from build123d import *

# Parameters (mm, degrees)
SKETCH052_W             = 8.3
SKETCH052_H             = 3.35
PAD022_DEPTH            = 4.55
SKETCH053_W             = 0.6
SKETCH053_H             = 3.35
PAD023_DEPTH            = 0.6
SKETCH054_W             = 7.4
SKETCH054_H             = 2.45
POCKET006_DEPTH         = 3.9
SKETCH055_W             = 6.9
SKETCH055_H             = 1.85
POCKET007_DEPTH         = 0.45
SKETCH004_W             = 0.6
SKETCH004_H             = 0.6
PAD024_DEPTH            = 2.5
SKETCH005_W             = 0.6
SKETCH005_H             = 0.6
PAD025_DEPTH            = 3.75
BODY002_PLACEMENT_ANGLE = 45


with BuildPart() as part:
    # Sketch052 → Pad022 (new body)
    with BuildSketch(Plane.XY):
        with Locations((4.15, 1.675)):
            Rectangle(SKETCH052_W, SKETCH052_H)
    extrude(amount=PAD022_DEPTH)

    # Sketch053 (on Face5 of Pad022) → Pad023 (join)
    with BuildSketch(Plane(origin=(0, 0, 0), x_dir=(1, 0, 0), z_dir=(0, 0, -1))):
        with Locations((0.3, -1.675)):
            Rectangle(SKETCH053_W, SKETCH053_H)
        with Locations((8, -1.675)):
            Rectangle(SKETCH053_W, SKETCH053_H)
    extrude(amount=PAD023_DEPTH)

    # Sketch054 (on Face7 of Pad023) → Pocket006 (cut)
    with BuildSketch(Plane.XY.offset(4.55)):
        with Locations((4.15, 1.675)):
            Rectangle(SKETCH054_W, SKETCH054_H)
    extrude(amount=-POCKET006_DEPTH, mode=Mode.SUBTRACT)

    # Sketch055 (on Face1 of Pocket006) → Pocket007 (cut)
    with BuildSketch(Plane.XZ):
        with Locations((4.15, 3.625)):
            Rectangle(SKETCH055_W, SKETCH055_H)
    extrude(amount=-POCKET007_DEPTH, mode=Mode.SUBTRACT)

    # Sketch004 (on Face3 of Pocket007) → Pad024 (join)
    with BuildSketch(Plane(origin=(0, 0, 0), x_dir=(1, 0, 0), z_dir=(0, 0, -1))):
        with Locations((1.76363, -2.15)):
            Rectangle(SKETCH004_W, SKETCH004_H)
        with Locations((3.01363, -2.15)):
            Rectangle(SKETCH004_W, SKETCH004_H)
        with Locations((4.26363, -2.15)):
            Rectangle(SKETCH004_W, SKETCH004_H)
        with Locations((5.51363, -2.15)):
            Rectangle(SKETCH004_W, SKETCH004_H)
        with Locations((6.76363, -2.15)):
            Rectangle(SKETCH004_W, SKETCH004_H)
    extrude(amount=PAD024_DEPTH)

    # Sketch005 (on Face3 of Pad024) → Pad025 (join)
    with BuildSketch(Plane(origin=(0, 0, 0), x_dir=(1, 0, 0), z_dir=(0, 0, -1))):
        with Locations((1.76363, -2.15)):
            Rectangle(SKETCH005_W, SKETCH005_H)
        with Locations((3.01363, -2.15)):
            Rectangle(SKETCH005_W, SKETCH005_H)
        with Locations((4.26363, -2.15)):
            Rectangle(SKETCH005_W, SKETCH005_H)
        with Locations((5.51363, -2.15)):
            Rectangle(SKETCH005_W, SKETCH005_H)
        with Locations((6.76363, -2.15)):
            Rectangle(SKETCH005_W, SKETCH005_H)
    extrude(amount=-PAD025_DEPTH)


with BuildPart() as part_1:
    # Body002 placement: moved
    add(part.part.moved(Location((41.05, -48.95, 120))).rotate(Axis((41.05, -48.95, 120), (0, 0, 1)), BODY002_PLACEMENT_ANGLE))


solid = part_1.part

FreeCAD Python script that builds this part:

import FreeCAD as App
import Part
import Sketcher
from FreeCAD import Vector
Q = App.Units.Quantity


def add_polygon(sketch, points):
    """Adds a closed chain of lines whose ends are joined by coincident constraints."""
    first, n = sketch.GeometryCount, len(points)
    for a, b in zip(points, points[1:] + points[:1]):
        sketch.addGeometry(Part.LineSegment(App.Vector(*a, 0), App.Vector(*b, 0)), False)
    for i in range(n):
        sketch.addConstraint(Sketcher.Constraint("Coincident", first + i, 2, first + (i + 1) % n, 1))

doc = App.newDocument("Part")
body = doc.addObject("PartDesign::Body", "Body")

# Sketch on XY plane
sketch1 = body.newObject("Sketcher::SketchObject", "Sketch")
sketch1.AttachmentSupport = (doc.getObject("XY_Plane"), [""])
sketch1.MapMode = "FlatFace"
add_polygon(sketch1, [(0, 3.4), (0, 0), (8.3, 0), (8.3, 3.4)])  # lines 0-3
sketch1.addConstraint([
    Sketcher.Constraint("Vertical", 0),
    Sketcher.Constraint("Horizontal", 1),
    Sketcher.Constraint("Vertical", 2),
    Sketcher.Constraint("Horizontal", 3),
    Sketcher.Constraint("Coincident", 0, 2, -1, 1),
    Sketcher.Constraint("DistanceX", 1, 1, 1, 2, Q("8.3 mm")),
    Sketcher.Constraint("DistanceY", 0, 2, 0, 1, Q("3.35 mm")),
])
pad1 = body.newObject("PartDesign::Pad", "Pad")
pad1.Profile = sketch1
pad1.Length = 4.55

# Sketch on XY plane
sketch2 = body.newObject("Sketcher::SketchObject", "Sketch001")
sketch2.AttachmentSupport = (doc.getObject("XY_Plane"), [""])
sketch2.MapMode = "FlatFace"
add_polygon(sketch2, [(0, 0), (0, 3.4), (0.6, 3.4), (0.6, 0)])  # lines 0-3
add_polygon(sketch2, [(7.7, 0), (7.7, 3.4), (8.3, 3.4), (8.3, 0)])  # lines 4-7
sketch2.addConstraint([
    Sketcher.Constraint("Vertical", 0),
    Sketcher.Constraint("Horizontal", 1),
    Sketcher.Constraint("Vertical", 2),
    Sketcher.Constraint("Horizontal", 3),
    Sketcher.Constraint("Vertical", 4),
    Sketcher.Constraint("Horizontal", 5),
    Sketcher.Constraint("Vertical", 6),
    Sketcher.Constraint("Horizontal", 7),
    Sketcher.Constraint("Coincident", 3, 2, -1, 1),
    Sketcher.Constraint("PointOnObject", 6, 2, -1),
    Sketcher.Constraint("Horizontal", 1, 2, 4, 2),
    Sketcher.Constraint("Equal", 3, 5),
    Sketcher.Constraint("DistanceX", 1, 1, 1, 2, Q("0.6 mm")),
    Sketcher.Constraint("DistanceY", 0, 1, 0, 2, Q("3.35 mm")),
    Sketcher.Constraint("DistanceX", -1, 1, 4, 2, Q("7.7 mm")),
])
pad2 = body.newObject("PartDesign::Pad", "Pad001")
pad2.Profile = sketch2
pad2.Length = 0.6
pad2.Reversed = True

# Sketch on XY plane
sketch3 = body.newObject("Sketcher::SketchObject", "Sketch002")
sketch3.AttachmentSupport = (doc.getObject("XY_Plane"), [""])
sketch3.MapMode = "FlatFace"
sketch3.AttachmentOffset = App.Placement(Vector(0, 0, 4.55), App.Rotation())
add_polygon(sketch3, [(0.5, 2.9), (0.5, 0.5), (7.8, 0.5), (7.8, 2.9)])  # lines 0-3
sketch3.addConstraint([
    Sketcher.Constraint("Vertical", 0),
    Sketcher.Constraint("Horizontal", 1),
    Sketcher.Constraint("Vertical", 2),
    Sketcher.Constraint("Horizontal", 3),
    Sketcher.Constraint("DistanceX", 1, 1, 1, 2, Q("7.4 mm")),
    Sketcher.Constraint("DistanceY", 0, 2, 0, 1, Q("2.45 mm")),
    Sketcher.Constraint("DistanceY", -1, 1, 2, 2, Q("2.9 mm")),
    Sketcher.Constraint("DistanceX", -1, 1, 0, 2, Q("0.45 mm")),
])
pocket1 = body.newObject("PartDesign::Pocket", "Pocket")
pocket1.Profile = sketch3
pocket1.Length = 3.9

# Sketch on XZ plane
sketch4 = body.newObject("Sketcher::SketchObject", "Sketch003")
sketch4.AttachmentSupport = (doc.getObject("XZ_Plane"), [""])
sketch4.MapMode = "FlatFace"
add_polygon(sketch4, [(0.7, 4.5), (0.7, 2.7), (7.6, 2.7), (7.6, 4.5)])  # lines 0-3
sketch4.addConstraint([
    Sketcher.Constraint("Vertical", 0),
    Sketcher.Constraint("Horizontal", 1),
    Sketcher.Constraint("Vertical", 2),
    Sketcher.Constraint("Horizontal", 3),
    Sketcher.Constraint("DistanceX", 1, 1, 1, 2, Q("6.9 mm")),
    Sketcher.Constraint("DistanceY", 0, 2, 0, 1, Q("1.85 mm")),
    Sketcher.Constraint("DistanceX", -1, 1, 0, 2, Q("0.7 mm")),
    Sketcher.Constraint("DistanceY", -1, 1, 0, 2, Q("2.7 mm")),
])
pocket2 = body.newObject("PartDesign::Pocket", "Pocket001")
pocket2.Profile = sketch4
pocket2.Length = 0.45

# Sketch on XY plane
sketch5 = body.newObject("Sketcher::SketchObject", "Sketch004")
sketch5.AttachmentSupport = (doc.getObject("XY_Plane"), [""])
sketch5.MapMode = "FlatFace"
add_polygon(sketch5, [(1.5, 1.9), (1.5, 2.5), (2.1, 2.5), (2.1, 1.9)])  # lines 0-3
add_polygon(sketch5, [(2.7, 1.9), (2.7, 2.5), (3.3, 2.5), (3.3, 1.9)])  # lines 4-7
add_polygon(sketch5, [(4, 1.9), (4, 2.5), (4.6, 2.5), (4.6, 1.9)])  # lines 8-11
add_polygon(sketch5, [(5.2, 1.9), (5.2, 2.5), (5.8, 2.5), (5.8, 1.9)])  # lines 12-15
add_polygon(sketch5, [(6.5, 1.9), (6.5, 2.5), (7.1, 2.5), (7.1, 1.9)])  # lines 16-19
sketch5.addConstraint([
    Sketcher.Constraint("Vertical", 0),
    Sketcher.Constraint("Horizontal", 1),
    Sketcher.Constraint("Vertical", 2),
    Sketcher.Constraint("Horizontal", 3),
    Sketcher.Constraint("Vertical", 4),
    Sketcher.Constraint("Horizontal", 5),
    Sketcher.Constraint("Vertical", 6),
    Sketcher.Constraint("Horizontal", 7),
    Sketcher.Constraint("Vertical", 8),
    Sketcher.Constraint("Horizontal", 9),
    Sketcher.Constraint("Vertical", 10),
    Sketcher.Constraint("Horizontal", 11),
    Sketcher.Constraint("Vertical", 12),
    Sketcher.Constraint("Horizontal", 13),
    Sketcher.Constraint("Vertical", 14),
    Sketcher.Constraint("Horizontal", 15),
    Sketcher.Constraint("Vertical", 16),
    Sketcher.Constraint("Horizontal", 17),
    Sketcher.Constraint("Vertical", 18),
    Sketcher.Constraint("Horizontal", 19),
    Sketcher.Constraint("Horizontal", 1, 2, 4, 2),
    Sketcher.Constraint("Horizontal", 3, 2, 6, 2),
    Sketcher.Constraint("Horizontal", 5, 2, 8, 2),
    Sketcher.Constraint("Horizontal", 7, 2, 10, 2),
    Sketcher.Constraint("Horizontal", 9, 2, 12, 2),
    Sketcher.Constraint("Horizontal", 11, 2, 14, 2),
    Sketcher.Constraint("Horizontal", 13, 2, 16, 2),
    Sketcher.Constraint("Horizontal", 15, 2, 18, 2),
    Sketcher.Constraint("Equal", 3, 5),
    Sketcher.Constraint("Equal", 7, 9),
    Sketcher.Constraint("Equal", 11, 13),
    Sketcher.Constraint("Equal", 15, 17),
    Sketcher.Constraint("Equal", 19, 0),
    Sketcher.Constraint("DistanceX", 1, 1, 1, 2, Q("0.6 mm")),
    Sketcher.Constraint("DistanceX", 1, 2, 8, 2, Q("1.9 mm")),
    Sketcher.Constraint("DistanceX", 5, 2, 12, 2, Q("1.9 mm")),
    Sketcher.Constraint("DistanceX", 9, 2, 16, 2, Q("1.9 mm")),
    Sketcher.Constraint("DistanceY", -1, 1, 0, 2, Q("2.45 mm")),
    Sketcher.Constraint("DistanceX", 1, 2, 4, 2, Q("0.65 mm")),
    Sketcher.Constraint("DistanceX", -1, 1, 0, 2, Q("1.46363 mm")),
])
pad3 = body.newObject("PartDesign::Pad", "Pad002")
pad3.Profile = sketch5
pad3.Length = 2.5
pad3.Reversed = True

# Sketch on XY plane
sketch6 = body.newObject("Sketcher::SketchObject", "Sketch005")
sketch6.AttachmentSupport = (doc.getObject("XY_Plane"), [""])
sketch6.MapMode = "FlatFace"
add_polygon(sketch6, [(1.5, 1.9), (1.5, 2.5), (2.1, 2.5), (2.1, 1.9)])  # lines 0-3
add_polygon(sketch6, [(2.7, 1.9), (2.7, 2.5), (3.3, 2.5), (3.3, 1.9)])  # lines 4-7
add_polygon(sketch6, [(4, 1.9), (4, 2.5), (4.6, 2.5), (4.6, 1.9)])  # lines 8-11
add_polygon(sketch6, [(5.2, 1.9), (5.2, 2.5), (5.8, 2.5), (5.8, 1.9)])  # lines 12-15
add_polygon(sketch6, [(6.5, 1.9), (6.5, 2.5), (7.1, 2.5), (7.1, 1.9)])  # lines 16-19
sketch6.addConstraint([
    Sketcher.Constraint("Vertical", 0),
    Sketcher.Constraint("Horizontal", 1),
    Sketcher.Constraint("Vertical", 2),
    Sketcher.Constraint("Horizontal", 3),
    Sketcher.Constraint("Vertical", 4),
    Sketcher.Constraint("Horizontal", 5),
    Sketcher.Constraint("Vertical", 6),
    Sketcher.Constraint("Horizontal", 7),
    Sketcher.Constraint("Vertical", 8),
    Sketcher.Constraint("Horizontal", 9),
    Sketcher.Constraint("Vertical", 10),
    Sketcher.Constraint("Horizontal", 11),
    Sketcher.Constraint("Vertical", 12),
    Sketcher.Constraint("Horizontal", 13),
    Sketcher.Constraint("Vertical", 14),
    Sketcher.Constraint("Horizontal", 15),
    Sketcher.Constraint("Vertical", 16),
    Sketcher.Constraint("Horizontal", 17),
    Sketcher.Constraint("Vertical", 18),
    Sketcher.Constraint("Horizontal", 19),
    Sketcher.Constraint("Horizontal", 1, 2, 4, 2),
    Sketcher.Constraint("Horizontal", 3, 2, 6, 2),
    Sketcher.Constraint("Horizontal", 5, 2, 8, 2),
    Sketcher.Constraint("Horizontal", 7, 2, 10, 2),
    Sketcher.Constraint("Horizontal", 9, 2, 12, 2),
    Sketcher.Constraint("Horizontal", 11, 2, 14, 2),
    Sketcher.Constraint("Horizontal", 13, 2, 16, 2),
    Sketcher.Constraint("Horizontal", 15, 2, 18, 2),
    Sketcher.Constraint("Equal", 3, 5),
    Sketcher.Constraint("Equal", 7, 9),
    Sketcher.Constraint("Equal", 11, 13),
    Sketcher.Constraint("Equal", 15, 17),
    Sketcher.Constraint("Equal", 19, 0),
    Sketcher.Constraint("DistanceX", 1, 1, 1, 2, Q("0.6 mm")),
    Sketcher.Constraint("DistanceX", 1, 2, 8, 2, Q("1.9 mm")),
    Sketcher.Constraint("DistanceX", 5, 2, 12, 2, Q("1.9 mm")),
    Sketcher.Constraint("DistanceX", 9, 2, 16, 2, Q("1.9 mm")),
    Sketcher.Constraint("DistanceY", -1, 1, 0, 2, Q("2.45 mm")),
    Sketcher.Constraint("DistanceX", 1, 2, 4, 2, Q("0.65 mm")),
    Sketcher.Constraint("DistanceX", -1, 1, 0, 2, Q("1.46363 mm")),
])
pad4 = body.newObject("PartDesign::Pad", "Pad003")
pad4.Profile = sketch6
pad4.Length = 3.75
body2 = doc.addObject("PartDesign::Body", "Body001")
doc.recompute()

body.Placement = App.Placement(Vector(41.05, -48.95, 120), App.Rotation(Vector(0, 0, 1), 45))
boolean = body2.newObject("PartDesign::Boolean", "Boolean")
boolean.Type = "Fuse"
boolean.addObjects([body])

doc.recompute()
